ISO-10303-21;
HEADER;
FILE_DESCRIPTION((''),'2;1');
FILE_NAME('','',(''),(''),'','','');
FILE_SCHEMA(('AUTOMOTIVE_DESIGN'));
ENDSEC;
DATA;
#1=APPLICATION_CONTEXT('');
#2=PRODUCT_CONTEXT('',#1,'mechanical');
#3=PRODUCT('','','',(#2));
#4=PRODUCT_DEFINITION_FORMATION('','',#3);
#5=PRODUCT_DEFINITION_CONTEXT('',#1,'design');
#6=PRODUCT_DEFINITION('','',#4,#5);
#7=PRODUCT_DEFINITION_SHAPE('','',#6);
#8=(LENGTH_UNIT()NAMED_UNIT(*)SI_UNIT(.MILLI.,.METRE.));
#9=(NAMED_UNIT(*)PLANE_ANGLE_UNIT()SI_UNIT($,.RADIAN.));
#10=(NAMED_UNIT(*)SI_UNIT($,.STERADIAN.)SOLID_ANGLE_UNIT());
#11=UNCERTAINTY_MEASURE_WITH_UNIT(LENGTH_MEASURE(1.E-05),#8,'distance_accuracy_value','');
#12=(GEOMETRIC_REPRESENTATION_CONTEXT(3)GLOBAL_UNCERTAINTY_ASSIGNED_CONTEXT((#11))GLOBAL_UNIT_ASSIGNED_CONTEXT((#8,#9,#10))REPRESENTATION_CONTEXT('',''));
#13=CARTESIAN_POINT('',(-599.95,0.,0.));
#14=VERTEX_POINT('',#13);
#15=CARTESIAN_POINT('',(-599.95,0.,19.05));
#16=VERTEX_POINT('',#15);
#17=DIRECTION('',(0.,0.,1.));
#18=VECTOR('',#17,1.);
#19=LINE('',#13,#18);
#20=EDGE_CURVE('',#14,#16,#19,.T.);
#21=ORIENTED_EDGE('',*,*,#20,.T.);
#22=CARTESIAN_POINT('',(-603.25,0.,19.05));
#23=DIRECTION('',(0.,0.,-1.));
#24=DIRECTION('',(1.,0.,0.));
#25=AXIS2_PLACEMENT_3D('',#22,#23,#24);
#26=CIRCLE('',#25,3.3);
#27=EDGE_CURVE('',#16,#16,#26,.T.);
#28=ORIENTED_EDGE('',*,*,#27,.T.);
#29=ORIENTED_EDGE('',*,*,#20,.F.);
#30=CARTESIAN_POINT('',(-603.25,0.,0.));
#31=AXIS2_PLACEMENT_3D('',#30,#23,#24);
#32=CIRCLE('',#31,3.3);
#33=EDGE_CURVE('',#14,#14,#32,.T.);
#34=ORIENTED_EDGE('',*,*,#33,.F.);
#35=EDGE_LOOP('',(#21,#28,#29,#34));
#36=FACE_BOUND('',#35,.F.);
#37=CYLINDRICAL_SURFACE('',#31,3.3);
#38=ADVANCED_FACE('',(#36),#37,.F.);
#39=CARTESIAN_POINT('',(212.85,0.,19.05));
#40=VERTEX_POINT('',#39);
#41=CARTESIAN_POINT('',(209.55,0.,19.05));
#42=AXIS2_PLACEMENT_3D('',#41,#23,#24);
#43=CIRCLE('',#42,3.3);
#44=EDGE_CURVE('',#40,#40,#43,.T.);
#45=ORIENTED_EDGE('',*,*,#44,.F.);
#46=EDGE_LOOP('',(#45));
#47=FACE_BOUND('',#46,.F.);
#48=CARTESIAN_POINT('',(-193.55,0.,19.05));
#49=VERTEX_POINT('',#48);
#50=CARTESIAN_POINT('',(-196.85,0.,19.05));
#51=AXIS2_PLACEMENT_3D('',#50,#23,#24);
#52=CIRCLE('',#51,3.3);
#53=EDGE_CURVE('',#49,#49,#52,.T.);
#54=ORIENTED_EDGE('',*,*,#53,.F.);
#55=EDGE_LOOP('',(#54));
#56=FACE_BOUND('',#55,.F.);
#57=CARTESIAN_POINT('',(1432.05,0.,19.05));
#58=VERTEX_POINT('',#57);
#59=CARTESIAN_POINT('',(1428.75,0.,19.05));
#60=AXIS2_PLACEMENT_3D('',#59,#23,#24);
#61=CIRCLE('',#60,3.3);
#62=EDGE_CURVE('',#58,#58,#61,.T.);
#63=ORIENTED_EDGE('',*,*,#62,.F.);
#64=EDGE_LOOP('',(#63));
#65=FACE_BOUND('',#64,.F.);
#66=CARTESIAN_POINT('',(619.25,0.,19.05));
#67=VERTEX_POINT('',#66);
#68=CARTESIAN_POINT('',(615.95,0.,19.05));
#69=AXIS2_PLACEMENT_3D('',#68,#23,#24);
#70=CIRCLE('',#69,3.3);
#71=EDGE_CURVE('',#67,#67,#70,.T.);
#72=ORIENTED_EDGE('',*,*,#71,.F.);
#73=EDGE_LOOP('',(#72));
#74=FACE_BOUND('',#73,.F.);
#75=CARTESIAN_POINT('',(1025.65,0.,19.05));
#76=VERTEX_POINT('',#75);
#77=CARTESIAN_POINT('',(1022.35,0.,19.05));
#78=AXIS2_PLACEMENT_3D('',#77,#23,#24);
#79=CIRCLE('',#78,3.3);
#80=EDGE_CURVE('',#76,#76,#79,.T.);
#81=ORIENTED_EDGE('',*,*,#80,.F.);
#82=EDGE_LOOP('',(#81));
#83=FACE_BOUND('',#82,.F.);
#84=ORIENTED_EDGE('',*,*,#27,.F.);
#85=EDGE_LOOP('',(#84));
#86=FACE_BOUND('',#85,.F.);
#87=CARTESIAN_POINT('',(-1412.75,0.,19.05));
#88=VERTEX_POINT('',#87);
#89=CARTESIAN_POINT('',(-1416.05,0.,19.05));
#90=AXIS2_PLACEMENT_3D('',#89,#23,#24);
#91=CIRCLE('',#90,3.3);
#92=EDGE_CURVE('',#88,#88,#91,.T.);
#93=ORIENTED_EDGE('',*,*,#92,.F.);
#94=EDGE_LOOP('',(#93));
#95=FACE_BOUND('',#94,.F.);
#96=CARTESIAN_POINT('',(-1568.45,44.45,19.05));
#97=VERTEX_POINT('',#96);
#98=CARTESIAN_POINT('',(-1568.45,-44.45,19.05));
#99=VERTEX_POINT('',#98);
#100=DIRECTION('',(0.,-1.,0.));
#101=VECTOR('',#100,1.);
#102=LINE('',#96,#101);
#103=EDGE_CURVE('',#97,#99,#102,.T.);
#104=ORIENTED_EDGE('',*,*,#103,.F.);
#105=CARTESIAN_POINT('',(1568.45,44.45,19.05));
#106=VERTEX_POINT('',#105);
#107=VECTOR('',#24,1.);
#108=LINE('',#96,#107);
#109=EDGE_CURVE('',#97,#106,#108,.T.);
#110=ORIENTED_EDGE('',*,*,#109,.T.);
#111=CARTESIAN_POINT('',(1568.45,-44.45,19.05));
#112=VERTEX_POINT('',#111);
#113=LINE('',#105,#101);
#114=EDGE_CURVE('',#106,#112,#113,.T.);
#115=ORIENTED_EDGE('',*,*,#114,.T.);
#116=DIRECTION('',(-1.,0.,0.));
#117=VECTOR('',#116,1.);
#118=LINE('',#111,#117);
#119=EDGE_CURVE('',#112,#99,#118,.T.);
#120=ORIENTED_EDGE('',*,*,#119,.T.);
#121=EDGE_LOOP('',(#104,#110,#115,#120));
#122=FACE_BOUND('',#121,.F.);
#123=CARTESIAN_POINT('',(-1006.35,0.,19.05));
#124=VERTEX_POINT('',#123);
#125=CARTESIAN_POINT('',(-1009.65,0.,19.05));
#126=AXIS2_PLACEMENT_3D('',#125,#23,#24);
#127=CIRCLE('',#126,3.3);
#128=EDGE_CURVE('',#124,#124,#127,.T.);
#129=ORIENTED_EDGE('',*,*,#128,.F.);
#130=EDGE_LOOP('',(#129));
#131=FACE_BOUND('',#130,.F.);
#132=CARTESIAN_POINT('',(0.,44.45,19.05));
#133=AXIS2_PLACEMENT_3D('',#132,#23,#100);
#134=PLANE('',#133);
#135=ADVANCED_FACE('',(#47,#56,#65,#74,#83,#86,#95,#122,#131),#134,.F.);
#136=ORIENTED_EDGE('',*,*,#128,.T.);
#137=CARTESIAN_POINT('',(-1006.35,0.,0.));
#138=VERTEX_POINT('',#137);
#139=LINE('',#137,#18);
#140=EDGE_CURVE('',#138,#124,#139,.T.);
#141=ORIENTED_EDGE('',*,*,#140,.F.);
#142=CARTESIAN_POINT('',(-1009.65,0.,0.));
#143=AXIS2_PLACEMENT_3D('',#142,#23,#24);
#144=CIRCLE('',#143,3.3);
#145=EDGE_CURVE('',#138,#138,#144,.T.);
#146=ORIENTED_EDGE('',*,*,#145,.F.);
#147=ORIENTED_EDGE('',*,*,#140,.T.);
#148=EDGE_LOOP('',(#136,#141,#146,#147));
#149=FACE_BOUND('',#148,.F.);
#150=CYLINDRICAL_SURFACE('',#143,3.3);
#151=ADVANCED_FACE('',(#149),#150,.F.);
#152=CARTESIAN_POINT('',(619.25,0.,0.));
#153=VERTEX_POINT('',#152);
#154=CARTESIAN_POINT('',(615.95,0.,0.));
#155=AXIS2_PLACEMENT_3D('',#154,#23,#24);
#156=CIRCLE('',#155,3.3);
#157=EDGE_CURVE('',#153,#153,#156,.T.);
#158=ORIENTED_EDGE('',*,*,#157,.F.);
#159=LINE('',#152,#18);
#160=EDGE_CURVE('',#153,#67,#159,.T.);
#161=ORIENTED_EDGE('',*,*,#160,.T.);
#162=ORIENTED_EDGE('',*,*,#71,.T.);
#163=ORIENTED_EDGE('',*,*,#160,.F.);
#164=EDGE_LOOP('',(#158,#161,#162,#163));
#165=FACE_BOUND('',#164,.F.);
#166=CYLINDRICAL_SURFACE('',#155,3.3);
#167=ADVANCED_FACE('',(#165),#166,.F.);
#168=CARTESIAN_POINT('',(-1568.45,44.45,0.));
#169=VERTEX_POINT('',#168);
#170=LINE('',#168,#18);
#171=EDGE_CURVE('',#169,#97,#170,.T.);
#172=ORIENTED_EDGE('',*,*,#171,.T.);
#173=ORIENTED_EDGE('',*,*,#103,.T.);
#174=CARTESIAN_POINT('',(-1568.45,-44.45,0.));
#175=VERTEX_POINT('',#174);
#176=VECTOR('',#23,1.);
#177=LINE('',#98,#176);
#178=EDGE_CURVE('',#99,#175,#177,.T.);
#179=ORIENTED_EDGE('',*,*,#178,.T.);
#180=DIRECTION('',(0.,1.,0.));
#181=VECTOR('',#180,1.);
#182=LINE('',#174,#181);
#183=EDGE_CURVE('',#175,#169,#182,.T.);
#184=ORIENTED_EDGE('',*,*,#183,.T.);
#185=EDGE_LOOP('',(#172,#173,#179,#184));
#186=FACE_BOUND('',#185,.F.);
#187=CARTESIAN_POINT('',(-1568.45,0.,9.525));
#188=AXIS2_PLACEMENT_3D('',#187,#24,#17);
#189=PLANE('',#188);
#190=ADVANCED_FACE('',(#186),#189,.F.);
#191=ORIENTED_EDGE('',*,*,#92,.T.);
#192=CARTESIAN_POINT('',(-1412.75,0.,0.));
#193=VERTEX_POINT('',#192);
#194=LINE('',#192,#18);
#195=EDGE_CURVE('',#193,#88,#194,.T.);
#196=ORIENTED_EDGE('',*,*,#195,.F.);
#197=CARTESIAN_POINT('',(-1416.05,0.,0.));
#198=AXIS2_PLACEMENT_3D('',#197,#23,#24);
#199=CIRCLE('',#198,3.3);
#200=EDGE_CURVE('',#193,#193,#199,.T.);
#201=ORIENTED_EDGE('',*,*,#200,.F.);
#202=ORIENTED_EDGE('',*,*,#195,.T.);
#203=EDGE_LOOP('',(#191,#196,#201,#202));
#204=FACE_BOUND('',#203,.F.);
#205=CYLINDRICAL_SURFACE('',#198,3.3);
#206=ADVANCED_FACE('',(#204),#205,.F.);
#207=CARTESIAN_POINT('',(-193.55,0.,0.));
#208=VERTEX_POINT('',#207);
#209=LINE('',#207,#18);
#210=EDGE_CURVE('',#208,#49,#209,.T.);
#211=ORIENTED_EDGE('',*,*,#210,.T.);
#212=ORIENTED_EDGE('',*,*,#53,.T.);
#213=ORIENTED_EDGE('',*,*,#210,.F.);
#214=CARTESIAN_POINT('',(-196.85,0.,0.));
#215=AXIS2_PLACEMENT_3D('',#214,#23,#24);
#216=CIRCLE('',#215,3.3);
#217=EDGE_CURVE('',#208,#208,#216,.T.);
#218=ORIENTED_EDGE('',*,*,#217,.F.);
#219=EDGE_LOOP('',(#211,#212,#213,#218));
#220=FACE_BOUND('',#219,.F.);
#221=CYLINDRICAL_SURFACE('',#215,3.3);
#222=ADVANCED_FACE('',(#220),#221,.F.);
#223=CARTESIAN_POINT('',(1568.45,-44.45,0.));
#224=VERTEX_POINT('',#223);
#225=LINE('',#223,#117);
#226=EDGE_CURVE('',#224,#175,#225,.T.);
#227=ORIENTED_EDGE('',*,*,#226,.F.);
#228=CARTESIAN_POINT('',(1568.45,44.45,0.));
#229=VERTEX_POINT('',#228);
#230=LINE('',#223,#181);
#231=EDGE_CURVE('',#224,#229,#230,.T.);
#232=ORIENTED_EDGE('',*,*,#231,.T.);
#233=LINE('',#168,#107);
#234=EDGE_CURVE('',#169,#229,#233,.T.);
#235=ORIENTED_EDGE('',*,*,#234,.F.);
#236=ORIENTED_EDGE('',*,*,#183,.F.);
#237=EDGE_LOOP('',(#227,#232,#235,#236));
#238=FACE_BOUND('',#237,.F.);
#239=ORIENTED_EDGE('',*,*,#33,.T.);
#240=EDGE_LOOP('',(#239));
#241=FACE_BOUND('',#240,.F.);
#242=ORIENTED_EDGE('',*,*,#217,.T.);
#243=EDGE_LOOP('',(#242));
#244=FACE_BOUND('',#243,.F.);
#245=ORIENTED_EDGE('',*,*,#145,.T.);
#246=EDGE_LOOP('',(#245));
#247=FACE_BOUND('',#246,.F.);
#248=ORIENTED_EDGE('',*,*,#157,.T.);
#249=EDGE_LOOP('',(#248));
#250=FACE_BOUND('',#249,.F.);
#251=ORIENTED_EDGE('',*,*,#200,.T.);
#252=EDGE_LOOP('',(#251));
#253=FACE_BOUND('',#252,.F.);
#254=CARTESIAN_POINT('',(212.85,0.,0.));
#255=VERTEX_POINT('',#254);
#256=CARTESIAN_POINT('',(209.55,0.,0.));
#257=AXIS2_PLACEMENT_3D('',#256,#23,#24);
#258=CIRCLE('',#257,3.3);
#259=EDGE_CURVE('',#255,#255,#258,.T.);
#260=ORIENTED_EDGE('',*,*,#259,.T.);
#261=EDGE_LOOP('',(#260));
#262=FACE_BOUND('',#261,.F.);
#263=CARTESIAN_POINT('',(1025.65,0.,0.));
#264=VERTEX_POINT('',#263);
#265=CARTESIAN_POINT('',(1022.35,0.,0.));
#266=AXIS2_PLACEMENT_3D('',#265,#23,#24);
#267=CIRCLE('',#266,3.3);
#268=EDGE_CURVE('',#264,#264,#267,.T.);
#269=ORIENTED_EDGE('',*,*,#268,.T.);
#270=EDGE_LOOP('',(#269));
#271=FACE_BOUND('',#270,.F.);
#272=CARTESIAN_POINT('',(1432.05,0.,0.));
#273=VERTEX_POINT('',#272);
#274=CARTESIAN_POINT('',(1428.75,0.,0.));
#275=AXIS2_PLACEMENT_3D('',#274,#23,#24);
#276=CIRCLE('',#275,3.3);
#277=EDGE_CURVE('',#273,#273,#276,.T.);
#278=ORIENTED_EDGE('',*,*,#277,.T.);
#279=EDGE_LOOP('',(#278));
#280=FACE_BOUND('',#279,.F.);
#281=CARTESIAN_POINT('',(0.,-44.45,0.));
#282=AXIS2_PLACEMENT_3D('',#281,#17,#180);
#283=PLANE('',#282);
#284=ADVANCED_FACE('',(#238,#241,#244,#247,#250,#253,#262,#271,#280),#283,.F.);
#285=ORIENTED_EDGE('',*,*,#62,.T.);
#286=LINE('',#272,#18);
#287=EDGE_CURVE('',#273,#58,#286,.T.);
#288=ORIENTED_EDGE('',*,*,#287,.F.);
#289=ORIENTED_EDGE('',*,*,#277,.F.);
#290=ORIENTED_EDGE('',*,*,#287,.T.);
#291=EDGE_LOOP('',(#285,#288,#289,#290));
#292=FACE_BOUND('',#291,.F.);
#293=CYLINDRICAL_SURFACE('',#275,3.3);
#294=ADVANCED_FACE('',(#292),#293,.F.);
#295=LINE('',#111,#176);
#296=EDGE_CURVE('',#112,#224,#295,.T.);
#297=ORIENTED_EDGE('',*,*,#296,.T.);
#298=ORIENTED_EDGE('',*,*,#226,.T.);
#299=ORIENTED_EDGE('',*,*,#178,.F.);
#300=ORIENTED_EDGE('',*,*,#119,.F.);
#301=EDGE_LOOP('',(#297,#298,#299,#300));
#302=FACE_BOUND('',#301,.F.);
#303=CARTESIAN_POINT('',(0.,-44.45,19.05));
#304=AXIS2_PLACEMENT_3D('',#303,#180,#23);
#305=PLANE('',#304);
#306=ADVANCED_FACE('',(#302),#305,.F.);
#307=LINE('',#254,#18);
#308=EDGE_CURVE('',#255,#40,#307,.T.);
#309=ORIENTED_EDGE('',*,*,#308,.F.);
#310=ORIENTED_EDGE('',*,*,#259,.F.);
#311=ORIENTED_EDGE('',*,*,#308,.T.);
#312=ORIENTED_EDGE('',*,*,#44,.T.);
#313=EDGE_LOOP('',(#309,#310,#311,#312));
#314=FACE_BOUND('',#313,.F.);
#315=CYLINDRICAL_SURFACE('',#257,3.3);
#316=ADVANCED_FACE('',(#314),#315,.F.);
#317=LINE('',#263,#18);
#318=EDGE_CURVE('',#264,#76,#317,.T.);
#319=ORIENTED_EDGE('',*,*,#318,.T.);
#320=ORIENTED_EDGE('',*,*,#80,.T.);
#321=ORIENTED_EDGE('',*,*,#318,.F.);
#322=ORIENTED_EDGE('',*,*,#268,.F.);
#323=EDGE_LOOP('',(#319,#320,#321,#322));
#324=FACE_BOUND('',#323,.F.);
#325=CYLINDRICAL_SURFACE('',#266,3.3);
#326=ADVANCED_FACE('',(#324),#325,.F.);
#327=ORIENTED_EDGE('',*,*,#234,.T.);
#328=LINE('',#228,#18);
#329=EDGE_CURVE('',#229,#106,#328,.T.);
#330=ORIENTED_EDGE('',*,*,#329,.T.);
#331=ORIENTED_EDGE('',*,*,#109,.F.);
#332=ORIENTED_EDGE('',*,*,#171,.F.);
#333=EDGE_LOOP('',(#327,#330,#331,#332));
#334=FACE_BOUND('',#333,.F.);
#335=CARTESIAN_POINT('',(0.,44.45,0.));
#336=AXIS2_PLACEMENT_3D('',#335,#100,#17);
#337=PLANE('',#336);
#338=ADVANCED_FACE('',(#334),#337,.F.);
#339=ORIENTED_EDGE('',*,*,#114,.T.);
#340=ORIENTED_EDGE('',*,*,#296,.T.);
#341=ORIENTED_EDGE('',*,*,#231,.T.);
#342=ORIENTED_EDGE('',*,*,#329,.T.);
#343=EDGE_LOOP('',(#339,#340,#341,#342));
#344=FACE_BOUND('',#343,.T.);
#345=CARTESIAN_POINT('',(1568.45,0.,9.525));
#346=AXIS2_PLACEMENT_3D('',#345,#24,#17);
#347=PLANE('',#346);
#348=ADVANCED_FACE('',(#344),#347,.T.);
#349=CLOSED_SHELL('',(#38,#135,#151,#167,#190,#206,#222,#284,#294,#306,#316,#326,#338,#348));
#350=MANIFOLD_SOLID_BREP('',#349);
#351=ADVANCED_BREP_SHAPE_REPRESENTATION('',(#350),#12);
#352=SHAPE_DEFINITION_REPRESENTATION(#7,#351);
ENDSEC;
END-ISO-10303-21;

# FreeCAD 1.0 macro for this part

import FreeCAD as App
import Part
import Sketcher

V = App.Vector
Q = App.Units.Quantity


def add_polygon(sketch, points):
    """Adds a closed chain of lines whose ends are joined by coincident constraints."""
    first, n = sketch.GeometryCount, len(points)
    for a, b in zip(points, points[1:] + points[:1]):
        sketch.addGeometry(Part.LineSegment(App.Vector(*a, 0), App.Vector(*b, 0)), False)
    for i in range(n):
        sketch.addConstraint(Sketcher.Constraint("Coincident", first + i, 2, first + (i + 1) % n, 1))

doc = App.newDocument("Part")
body = doc.addObject("PartDesign::Body", "Body")

# Sketch on YZ plane
sketch1 = body.newObject("Sketcher::SketchObject", "Sketch")
sketch1.AttachmentSupport = (doc.getObject("YZ_Plane"), [""])
sketch1.MapMode = "FlatFace"
add_polygon(sketch1, [(-44, 19), (-44, 0), (44, 0), (44, 19)])  # lines 0-3
sketch1.addConstraint([
    Sketcher.Constraint("Vertical", 0),
    Sketcher.Constraint("Horizontal", 1),
    Sketcher.Constraint("Vertical", 2),
    Sketcher.Constraint("Horizontal", 3),
    Sketcher.Constraint("Symmetric", 0, 2, 1, 2, -1, 1),
    Sketcher.Constraint("DistanceX", 1, 1, 1, 2, Q("3.5 in")),
    Sketcher.Constraint("DistanceY", 0, 2, 0, 1, Q("0.75 in")),
])
pad1 = body.newObject("PartDesign::Pad", "Pad")
pad1.Profile = sketch1
pad1.Length = Q("123.5 in")
pad1.Midplane = True

# Sketch on XY plane
sketch2 = body.newObject("Sketcher::SketchObject", "Sketch001")
sketch2.AttachmentSupport = (doc.getObject("XY_Plane"), [""])
sketch2.MapMode = "FlatFace"
sketch2.addGeometry(Part.Circle(V(-1416, 0, 0), V(0, 0, 1), 3.3), False)
sketch2.addConstraint([
    Sketcher.Constraint("PointOnObject", 0, 3, -1),
    Sketcher.Constraint("Diameter", 0, Q("6.6 mm")),
    Sketcher.Constraint("DistanceX", 0, 3, -1, 1, Q("55.75 in")),
])
pocket1 = body.newObject("PartDesign::Pocket", "Pocket")
pocket1.Profile = sketch2
pocket1.Type = "ThroughAll"
pocket1.Reversed = True
doc.recompute()

linearpattern = body.newObject("PartDesign::LinearPattern", "LinearPattern")
linearpattern.Originals = [pocket1]
linearpattern.Direction = (doc.getObject("X_Axis"), [""])
linearpattern.Mode = "offset"
linearpattern.Offset = Q("16 in")
linearpattern.Occurrences = 8
body.Tip = linearpattern

doc.recompute()
